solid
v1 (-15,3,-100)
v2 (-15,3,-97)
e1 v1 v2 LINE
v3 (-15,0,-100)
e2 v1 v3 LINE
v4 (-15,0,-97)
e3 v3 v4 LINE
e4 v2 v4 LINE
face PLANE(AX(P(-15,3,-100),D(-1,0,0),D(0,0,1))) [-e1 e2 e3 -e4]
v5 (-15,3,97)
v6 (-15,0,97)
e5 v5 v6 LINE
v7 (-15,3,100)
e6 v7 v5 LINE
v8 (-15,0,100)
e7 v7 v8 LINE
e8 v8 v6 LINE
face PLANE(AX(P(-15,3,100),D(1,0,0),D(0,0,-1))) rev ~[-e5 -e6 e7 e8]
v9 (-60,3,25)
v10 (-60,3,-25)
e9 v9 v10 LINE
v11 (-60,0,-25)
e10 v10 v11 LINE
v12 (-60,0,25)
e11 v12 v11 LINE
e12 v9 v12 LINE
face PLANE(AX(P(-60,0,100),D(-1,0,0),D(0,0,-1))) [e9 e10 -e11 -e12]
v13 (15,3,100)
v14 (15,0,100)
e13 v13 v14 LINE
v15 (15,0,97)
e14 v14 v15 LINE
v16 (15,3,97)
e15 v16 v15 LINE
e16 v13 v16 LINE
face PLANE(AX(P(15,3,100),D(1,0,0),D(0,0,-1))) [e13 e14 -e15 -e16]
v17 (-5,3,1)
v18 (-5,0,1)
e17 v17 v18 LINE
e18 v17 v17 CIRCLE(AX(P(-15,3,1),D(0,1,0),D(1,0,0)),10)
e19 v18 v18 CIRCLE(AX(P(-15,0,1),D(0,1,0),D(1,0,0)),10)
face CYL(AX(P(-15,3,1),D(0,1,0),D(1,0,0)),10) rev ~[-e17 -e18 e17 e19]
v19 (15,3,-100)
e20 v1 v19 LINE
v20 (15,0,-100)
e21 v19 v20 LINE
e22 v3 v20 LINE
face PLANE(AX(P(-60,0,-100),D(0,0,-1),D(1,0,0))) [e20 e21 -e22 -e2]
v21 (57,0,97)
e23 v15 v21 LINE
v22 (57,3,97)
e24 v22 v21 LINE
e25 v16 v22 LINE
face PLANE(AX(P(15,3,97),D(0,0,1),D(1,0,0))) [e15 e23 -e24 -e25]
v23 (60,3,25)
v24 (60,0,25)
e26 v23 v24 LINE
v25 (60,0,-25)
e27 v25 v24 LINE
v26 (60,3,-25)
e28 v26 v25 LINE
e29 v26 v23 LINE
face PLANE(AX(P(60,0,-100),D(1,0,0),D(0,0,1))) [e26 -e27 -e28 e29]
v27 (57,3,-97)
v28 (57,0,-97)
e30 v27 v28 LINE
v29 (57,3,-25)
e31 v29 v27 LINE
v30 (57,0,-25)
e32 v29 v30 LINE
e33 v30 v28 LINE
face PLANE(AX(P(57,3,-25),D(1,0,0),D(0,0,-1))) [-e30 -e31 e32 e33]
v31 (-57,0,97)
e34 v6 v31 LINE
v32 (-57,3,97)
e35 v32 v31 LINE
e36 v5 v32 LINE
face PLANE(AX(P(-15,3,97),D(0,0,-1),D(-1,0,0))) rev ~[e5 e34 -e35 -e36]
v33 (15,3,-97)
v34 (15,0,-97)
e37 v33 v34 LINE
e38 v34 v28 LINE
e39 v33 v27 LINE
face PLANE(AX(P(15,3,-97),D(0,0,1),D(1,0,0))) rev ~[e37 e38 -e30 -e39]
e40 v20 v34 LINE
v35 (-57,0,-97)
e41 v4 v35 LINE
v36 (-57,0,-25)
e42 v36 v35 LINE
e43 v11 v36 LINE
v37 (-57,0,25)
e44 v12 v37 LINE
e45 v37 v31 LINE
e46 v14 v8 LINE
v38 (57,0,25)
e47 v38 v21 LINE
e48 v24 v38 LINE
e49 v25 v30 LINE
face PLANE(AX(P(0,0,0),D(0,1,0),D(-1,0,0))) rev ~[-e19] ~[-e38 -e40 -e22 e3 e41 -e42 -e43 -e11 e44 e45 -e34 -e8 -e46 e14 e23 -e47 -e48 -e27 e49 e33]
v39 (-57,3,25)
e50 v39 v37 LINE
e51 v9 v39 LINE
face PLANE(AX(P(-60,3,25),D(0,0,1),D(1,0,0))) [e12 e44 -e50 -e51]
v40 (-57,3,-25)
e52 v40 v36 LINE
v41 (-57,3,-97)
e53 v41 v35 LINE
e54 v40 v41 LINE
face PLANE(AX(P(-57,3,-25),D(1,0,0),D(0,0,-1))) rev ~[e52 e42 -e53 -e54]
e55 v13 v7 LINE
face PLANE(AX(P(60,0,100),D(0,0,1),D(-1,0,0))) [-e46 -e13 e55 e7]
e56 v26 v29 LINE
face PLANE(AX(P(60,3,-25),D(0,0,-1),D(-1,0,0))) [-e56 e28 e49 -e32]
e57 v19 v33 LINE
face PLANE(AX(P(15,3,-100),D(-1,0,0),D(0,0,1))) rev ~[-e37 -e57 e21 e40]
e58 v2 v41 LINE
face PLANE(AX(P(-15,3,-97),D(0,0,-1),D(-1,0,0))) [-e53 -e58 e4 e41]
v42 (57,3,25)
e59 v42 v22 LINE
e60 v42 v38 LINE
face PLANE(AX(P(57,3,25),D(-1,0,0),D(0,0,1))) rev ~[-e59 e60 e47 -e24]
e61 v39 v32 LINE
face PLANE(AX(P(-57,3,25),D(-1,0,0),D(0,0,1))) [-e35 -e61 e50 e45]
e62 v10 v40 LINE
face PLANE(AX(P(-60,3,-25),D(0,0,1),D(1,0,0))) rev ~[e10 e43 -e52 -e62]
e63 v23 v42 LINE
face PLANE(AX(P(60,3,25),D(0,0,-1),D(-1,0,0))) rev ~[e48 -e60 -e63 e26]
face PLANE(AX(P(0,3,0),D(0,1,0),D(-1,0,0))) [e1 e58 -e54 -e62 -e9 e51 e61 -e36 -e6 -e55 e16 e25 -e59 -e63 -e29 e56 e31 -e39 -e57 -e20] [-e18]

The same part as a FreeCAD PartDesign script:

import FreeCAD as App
import Part
import Sketcher
from FreeCAD import Vector
Q = App.Units.Quantity


def add_polygon(sketch, points):
    """Adds a closed chain of lines whose ends are joined by coincident constraints."""
    first, n = sketch.GeometryCount, len(points)
    for a, b in zip(points, points[1:] + points[:1]):
        sketch.addGeometry(Part.LineSegment(App.Vector(*a, 0), App.Vector(*b, 0)), False)
    for i in range(n):
        sketch.addConstraint(Sketcher.Constraint("Coincident", first + i, 2, first + (i + 1) % n, 1))

doc = App.newDocument("Part")
params = doc.addObject("Spreadsheet::Sheet", "Params")
for row, (alias, value) in enumerate([
    ("sketch1_width", "120 mm"),
    ("sketch1_height", "200 mm"),
    ("pad1_length", "3 mm"),
    ("sketch2_diameter", "20 mm"),
    ("sketch3_width", "3 mm"),
    ("sketch3_height", "75 mm"),
    ("sketch4_width", "42 mm"),
    ("sketch4_height", "3 mm"),
], start=1):
    params.set(f"A{row}", alias)
    params.set(f"B{row}", "=" + value)
    params.setAlias(f"B{row}", alias)

body = doc.addObject("PartDesign::Body", "Body")

sketch1 = body.newObject("Sketcher::SketchObject", "Sketch")
sketch1.AttachmentSupport = (doc.getObject("XZ_Plane"), [""])
sketch1.MapMode = "FlatFace"
add_polygon(sketch1, [(-60, 100), (60, 100), (60, -100), (-60, -100)])
sketch1.addConstraint([
    Sketcher.Constraint("Horizontal", 0),
    Sketcher.Constraint("Vertical", 1),
    Sketcher.Constraint("Horizontal", 2),
    Sketcher.Constraint("Vertical", 3),
    Sketcher.Constraint("Symmetric", 0, 2, 2, 2, -1, 1),
    Sketcher.Constraint("DistanceX", 0, 1, 0, 2, Q("120 mm")),
    Sketcher.Constraint("DistanceY", 1, 2, 1, 1, Q("200 mm")),
])
sketch1.setExpression("Constraints[9]", "Params.sketch1_width")
sketch1.setExpression("Constraints[10]", "Params.sketch1_height")
pad1 = body.newObject("PartDesign::Pad", "Pad")
pad1.Profile = sketch1
pad1.setExpression("Length", "Params.pad1_length")
pad1.Reversed = True

sketch2 = body.newObject("Sketcher::SketchObject", "Sketch001")
sketch2.AttachmentSupport = (doc.getObject("XZ_Plane"), [""])
sketch2.MapMode = "FlatFace"
sketch2.AttachmentOffset = App.Placement(Vector(0, 0, -3), App.Rotation())
sketch2.addGeometry(Part.Circle(Vector(-15, 1, 0), Vector(0, 0, 1), 10), False)
sketch2.addConstraint([
    Sketcher.Constraint("Diameter", 0, Q("20 mm")),
    Sketcher.Constraint("DistanceX", 0, 3, -1, 1, Q("15 mm")),
    Sketcher.Constraint("DistanceY", -1, 1, 0, 3, Q("1 mm")),
])
sketch2.setExpression("Constraints[0]", "Params.sketch2_diameter")
pocket1 = body.newObject("PartDesign::Pocket", "Pocket")
pocket1.Profile = sketch2
pocket1.Type = "ThroughAll"
pocket1.Reversed = True

sketch3 = body.newObject("Sketcher::SketchObject", "Sketch002")
sketch3.AttachmentSupport = (doc.getObject("XZ_Plane"), [""])
sketch3.MapMode = "FlatFace"
sketch3.AttachmentOffset = App.Placement(Vector(0, 0, -3), App.Rotation())
add_polygon(sketch3, [(-60, -100), (-60, -25), (-57, -25), (-57, -100)])
add_polygon(sketch3, [(-57, 25), (-60, 25), (-60, 100), (-57, 100)])
add_polygon(sketch3, [(60, -100), (57, -100), (57, -25), (60, -25)])
add_polygon(sketch3, [(60, 100), (60, 25), (57, 25), (57, 100)])
sketch3.addConstraint([
    Sketcher.Constraint("Vertical", 0),
    Sketcher.Constraint("Horizontal", 1),
    Sketcher.Constraint("Vertical", 2),
    Sketcher.Constraint("Horizontal", 3),
    Sketcher.Constraint("Horizontal", 4),
    Sketcher.Constraint("Vertical", 5),
    Sketcher.Constraint("Horizontal", 6),
    Sketcher.Constraint("Vertical", 7),
    Sketcher.Constraint("Horizontal", 8),
    Sketcher.Constraint("Vertical", 9),
    Sketcher.Constraint("Horizontal", 10),
    Sketcher.Constraint("Vertical", 11),
    Sketcher.Constraint("Vertical", 12),
    Sketcher.Constraint("Horizontal", 13),
    Sketcher.Constraint("Vertical", 14),
    Sketcher.Constraint("Horizontal", 15),
    Sketcher.Constraint("Symmetric", 6, 2, 8, 2, -1, 1),
    Sketcher.Constraint("Symmetric", 4, 2, 10, 2, -1, 1),
    Sketcher.Constraint("Symmetric", 0, 2, 12, 2, -1, 1),
    Sketcher.Constraint("Symmetric", 2, 2, 14, 2, -1, 1),
    Sketcher.Constraint("Symmetric", 2, 2, 8, 2, -2),
    Sketcher.Constraint("Symmetric", 0, 2, 10, 2, -2),
    Sketcher.Constraint("DistanceX", 1, 1, 1, 2, Q("3 mm")),
    Sketcher.Constraint("DistanceY", 0, 1, 0, 2, Q("75 mm")),
    Sketcher.Constraint("DistanceX", 0, 2, -1, 1, Q("60 mm")),
    Sketcher.Constraint("DistanceY", 0, 2, -1, 1, Q("25 mm")),
])
sketch3.setExpression("Constraints[38]", "Params.sketch3_width")
sketch3.setExpression("Constraints[39]", "Params.sketch3_height")
pocket2 = body.newObject("PartDesign::Pocket", "Pocket001")
pocket2.Profile = sketch3
pocket2.Type = "ThroughAll"
pocket2.Reversed = True

sketch4 = body.newObject("Sketcher::SketchObject", "Sketch003")
sketch4.AttachmentSupport = (doc.getObject("XZ_Plane"), [""])
sketch4.MapMode = "FlatFace"
sketch4.AttachmentOffset = App.Placement(Vector(0, 0, -3), App.Rotation())
add_polygon(sketch4, [(-57, 97), (-57, 100), (-15, 100), (-15, 97)])
add_polygon(sketch4, [(-15, -97), (-15, -100), (-57, -100), (-57, -97)])
add_polygon(sketch4, [(57, -100), (15, -100), (15, -97), (57, -97)])
add_polygon(sketch4, [(15, 97), (15, 100), (57, 100), (57, 97)])
sketch4.addConstraint([
    Sketcher.Constraint("Vertical", 0),
    Sketcher.Constraint("Horizontal", 1),
    Sketcher.Constraint("Vertical", 2),
    Sketcher.Constraint("Horizontal", 3),
    Sketcher.Constraint("Vertical", 4),
    Sketcher.Constraint("Horizontal", 5),
    Sketcher.Constraint("Vertical", 6),
    Sketcher.Constraint("Horizontal", 7),
    Sketcher.Constraint("Horizontal", 8),
    Sketcher.Constraint("Vertical", 9),
    Sketcher.Constraint("Horizontal", 10),
    Sketcher.Constraint("Vertical", 11),
    Sketcher.Constraint("Vertical", 12),
    Sketcher.Constraint("Horizontal", 13),
    Sketcher.Constraint("Vertical", 14),
    Sketcher.Constraint("Horizontal", 15),
    Sketcher.Constraint("Symmetric", 1, 2, 8, 2, -1, 1),
    Sketcher.Constraint("Symmetric", 3, 2, 10, 2, -1, 1),
    Sketcher.Constraint("Symmetric", 4, 2, 12, 2, -1, 1),
    Sketcher.Constraint("Symmetric", 6, 2, 14, 2, -1, 1),
    Sketcher.Constraint("Symmetric", 4, 2, 8, 2, -2),
    Sketcher.Constraint("Symmetric", 6, 2, 10, 2, -2),
    Sketcher.Constraint("DistanceX", 1, 1, 1, 2, Q("42 mm")),
    Sketcher.Constraint("DistanceY", 0, 1, 0, 2, Q("3 mm")),
    Sketcher.Constraint("DistanceX", 0, 2, -1, 1, Q("57 mm")),
    Sketcher.Constraint("DistanceY", -1, 1, 0, 2, Q("100 mm")),
])
sketch4.setExpression("Constraints[38]", "Params.sketch4_width")
sketch4.setExpression("Constraints[39]", "Params.sketch4_height")
pocket3 = body.newObject("PartDesign::Pocket", "Pocket002")
pocket3.Profile = sketch4
pocket3.Type = "ThroughAll"
pocket3.Reversed = True

doc.recompute()
